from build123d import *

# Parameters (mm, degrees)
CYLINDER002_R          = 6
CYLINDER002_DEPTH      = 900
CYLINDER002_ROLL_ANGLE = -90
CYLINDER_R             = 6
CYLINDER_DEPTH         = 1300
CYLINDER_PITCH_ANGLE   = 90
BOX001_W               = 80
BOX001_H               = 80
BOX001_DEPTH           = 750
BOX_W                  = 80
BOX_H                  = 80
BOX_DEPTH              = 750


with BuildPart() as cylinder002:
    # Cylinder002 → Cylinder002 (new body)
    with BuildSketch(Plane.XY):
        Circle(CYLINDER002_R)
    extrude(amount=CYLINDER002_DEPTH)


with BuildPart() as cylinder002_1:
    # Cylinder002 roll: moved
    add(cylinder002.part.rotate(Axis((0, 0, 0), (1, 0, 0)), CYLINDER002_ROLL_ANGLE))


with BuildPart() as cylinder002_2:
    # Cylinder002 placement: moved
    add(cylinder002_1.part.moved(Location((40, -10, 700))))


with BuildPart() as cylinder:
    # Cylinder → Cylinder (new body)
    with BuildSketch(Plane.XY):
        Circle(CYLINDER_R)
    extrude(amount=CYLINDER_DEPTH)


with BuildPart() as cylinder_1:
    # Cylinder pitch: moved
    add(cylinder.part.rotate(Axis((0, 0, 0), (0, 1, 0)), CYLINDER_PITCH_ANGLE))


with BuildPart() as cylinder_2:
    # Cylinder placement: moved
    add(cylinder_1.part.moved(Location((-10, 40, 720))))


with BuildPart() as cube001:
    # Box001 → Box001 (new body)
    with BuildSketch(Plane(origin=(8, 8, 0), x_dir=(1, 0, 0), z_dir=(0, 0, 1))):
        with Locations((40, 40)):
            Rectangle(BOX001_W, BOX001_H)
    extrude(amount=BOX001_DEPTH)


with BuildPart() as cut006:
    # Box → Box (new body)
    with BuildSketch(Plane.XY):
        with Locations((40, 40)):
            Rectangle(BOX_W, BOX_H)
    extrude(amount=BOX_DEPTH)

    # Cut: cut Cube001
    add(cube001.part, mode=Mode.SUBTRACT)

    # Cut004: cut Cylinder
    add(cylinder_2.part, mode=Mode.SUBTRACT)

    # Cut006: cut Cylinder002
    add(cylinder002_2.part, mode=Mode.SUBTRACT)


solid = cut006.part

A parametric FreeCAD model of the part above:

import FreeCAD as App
import Part
import Sketcher

doc = App.newDocument("Part")
body = doc.addObject("PartDesign::Body", "Body")

# Sketch on XY plane
sketch1 = body.newObject("Sketcher::SketchObject", "Sketch")
sketch1.AttachmentSupport = (doc.getObject("XY_Plane"), [""])
sketch1.MapMode = "FlatFace"
sketch1.addGeometry(Part.Circle(App.Vector(0, 0, 0), App.Vector(0, 0, 1), 6), False)
sketch1.addConstraint([
    Sketcher.Constraint("Coincident", 0, 3, -1, 1),
    Sketcher.Constraint("Diameter", 0, 12.0),
])
pad1 = body.newObject("PartDesign::Pad", "Pad")
pad1.Profile = sketch1
pad1.Length = 900
body2 = doc.addObject("PartDesign::Body", "Body001")
doc.recompute()

body.Placement = App.Placement(App.Vector(0, 0, 0), App.Rotation(App.Vector(1, 0, 0), 270))
boolean = body2.newObject("PartDesign::Boolean", "Boolean")
boolean.Type = "Fuse"
boolean.addObjects([body])
body3 = doc.addObject("PartDesign::Body", "Body002")
doc.recompute()

body2.Placement = App.Placement(App.Vector(40, -10, 700), App.Rotation(App.Vector(0, 0, 1), 0))
boolean2 = body3.newObject("PartDesign::Boolean", "Boolean001")
boolean2.Type = "Fuse"
boolean2.addObjects([body2])
body4 = doc.addObject("PartDesign::Body", "Body003")

# Sketch on XY plane
sketch2 = body4.newObject("Sketcher::SketchObject", "Sketch001")
sketch2.AttachmentSupport = (doc.getObject("XY_Plane003"), [""])
sketch2.MapMode = "FlatFace"
sketch2.addGeometry(Part.Circle(App.Vector(0, 0, 0), App.Vector(0, 0, 1), 6), False)
sketch2.addConstraint([
    Sketcher.Constraint("Coincident", 0, 3, -1, 1),
    Sketcher.Constraint("Diameter", 0, 12.0),
])
pad2 = body4.newObject("PartDesign::Pad", "Pad001")
pad2.Profile = sketch2
pad2.Length = 1300
body5 = doc.addObject("PartDesign::Body", "Body004")
doc.recompute()

body4.Placement = App.Placement(App.Vector(0, 0, 0), App.Rotation(App.Vector(0, 1, 0), 90))
boolean3 = body5.newObject("PartDesign::Boolean", "Boolean002")
boolean3.Type = "Fuse"
boolean3.addObjects([body4])
body6 = doc.addObject("PartDesign::Body", "Body005")
doc.recompute()

body5.Placement = App.Placement(App.Vector(-10, 40, 720), App.Rotation(App.Vector(0, 0, 1), 0))
boolean4 = body6.newObject("PartDesign::Boolean", "Boolean003")
boolean4.Type = "Fuse"
boolean4.addObjects([body5])
body7 = doc.addObject("PartDesign::Body", "Body006")

# Sketch on XY plane
sketch3 = body7.newObject("Sketcher::SketchObject", "Sketch002")
sketch3.AttachmentSupport = (doc.getObject("XY_Plane006"), [""])
sketch3.MapMode = "FlatFace"
sketch3.addGeometry([
    Part.LineSegment(App.Vector(8, 88, 0), App.Vector(8, 8, 0)),
    Part.LineSegment(App.Vector(8, 8, 0), App.Vector(88, 8, 0)),
    Part.LineSegment(App.Vector(88, 8, 0), App.Vector(88, 88, 0)),
    Part.LineSegment(App.Vector(88, 88, 0), App.Vector(8, 88, 0)),
], False)
sketch3.addConstraint([
    Sketcher.Constraint("Coincident", 0, 2, 1, 1),
    Sketcher.Constraint("Coincident", 1, 2, 2, 1),
    Sketcher.Constraint("Coincident", 2, 2, 3, 1),
    Sketcher.Constraint("Coincident", 3, 2, 0, 1),
    Sketcher.Constraint("Vertical", 0),
    Sketcher.Constraint("Horizontal", 1),
    Sketcher.Constraint("Vertical", 2),
    Sketcher.Constraint("Horizontal", 3),
    Sketcher.Constraint("Equal", 3, 0),
    Sketcher.Constraint("DistanceX", 1, 1, 1, 2, 80.0),
    Sketcher.Constraint("DistanceX", -1, 1, 0, 2, 8.0),
    Sketcher.Constraint("DistanceY", -1, 1, 0, 2, 8.0),
])
pad3 = body7.newObject("PartDesign::Pad", "Pad002")
pad3.Profile = sketch3
pad3.Length = 750
body8 = doc.addObject("PartDesign::Body", "Body007")

# Sketch on XY plane
sketch4 = body8.newObject("Sketcher::SketchObject", "Sketch003")
sketch4.AttachmentSupport = (doc.getObject("XY_Plane007"), [""])
sketch4.MapMode = "FlatFace"
sketch4.addGeometry([
    Part.LineSegment(App.Vector(0, 80, 0), App.Vector(0, 0, 0)),
    Part.LineSegment(App.Vector(0, 0, 0), App.Vector(80, 0, 0)),
    Part.LineSegment(App.Vector(80, 0, 0), App.Vector(80, 80, 0)),
    Part.LineSegment(App.Vector(80, 80, 0), App.Vector(0, 80, 0)),
], False)
sketch4.addConstraint([
    Sketcher.Constraint("Coincident", 0, 2, 1, 1),
    Sketcher.Constraint("Coincident", 1, 2, 2, 1),
    Sketcher.Constraint("Coincident", 2, 2, 3, 1),
    Sketcher.Constraint("Coincident", 3, 2, 0, 1),
    Sketcher.Constraint("Vertical", 0),
    Sketcher.Constraint("Horizontal", 1),
    Sketcher.Constraint("Vertical", 2),
    Sketcher.Constraint("Horizontal", 3),
    Sketcher.Constraint("Coincident", 0, 2, -1, 1),
    Sketcher.Constraint("Equal", 3, 0),
    Sketcher.Constraint("DistanceX", 1, 1, 1, 2, 80.0),
])
pad4 = body8.newObject("PartDesign::Pad", "Pad003")
pad4.Profile = sketch4
pad4.Length = 750
doc.recompute()

boolean5 = body8.newObject("PartDesign::Boolean", "Boolean004")
boolean5.Type = "Cut"
boolean5.addObjects([body7])
doc.recompute()

boolean6 = body8.newObject("PartDesign::Boolean", "Boolean005")
boolean6.Type = "Cut"
boolean6.addObjects([body6])
doc.recompute()

boolean7 = body8.newObject("PartDesign::Boolean", "Boolean006")
boolean7.Type = "Cut"
boolean7.addObjects([body3])

doc.recompute()
